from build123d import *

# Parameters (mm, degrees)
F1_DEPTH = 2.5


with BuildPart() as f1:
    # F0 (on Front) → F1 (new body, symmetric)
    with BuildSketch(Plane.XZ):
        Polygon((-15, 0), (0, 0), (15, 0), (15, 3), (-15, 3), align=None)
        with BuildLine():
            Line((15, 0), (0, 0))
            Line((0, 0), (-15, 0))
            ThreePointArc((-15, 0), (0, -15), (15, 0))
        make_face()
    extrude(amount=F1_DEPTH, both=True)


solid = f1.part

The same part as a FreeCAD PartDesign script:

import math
import FreeCAD as App
import Part
import Sketcher
from FreeCAD import Vector

doc = App.newDocument("Part")
body = doc.addObject("PartDesign::Body", "Body")

sketch1 = body.newObject("Sketcher::SketchObject", "Sketch")
sketch1.AttachmentSupport = (doc.getObject("XZ_Plane"), [""])
sketch1.MapMode = "FlatFace"
sketch1.addGeometry([
    Part.LineSegment(Vector(15, 0, 0), Vector(15, 3, 0)),
    Part.LineSegment(Vector(15, 3, 0), Vector(-15, 3, 0)),
    Part.LineSegment(Vector(-15, 3, 0), Vector(-15, 0, 0)),
    Part.ArcOfCircle(Part.Circle(Vector(0, 0, 0), Vector(0, 0, 1), 15), math.radians(180), math.radians(360)),
], False)
sketch1.addConstraint([
    Sketcher.Constraint("Coincident", 0, 2, 1, 1),
    Sketcher.Constraint("Coincident", 1, 2, 2, 1),
    Sketcher.Constraint("Tangent", 2, 2, 3, 1),
    Sketcher.Constraint("Tangent", 3, 2, 0, 1),
    Sketcher.Constraint("Vertical", 0),
    Sketcher.Constraint("Horizontal", 1),
    Sketcher.Constraint("Vertical", 2),
    Sketcher.Constraint("Coincident", 3, 3, -1, 1),
    Sketcher.Constraint("Radius", 3, 15.0),
    Sketcher.Constraint("DistanceY", 0, 1, 0, 2, 3.0),
])
pad1 = body.newObject("PartDesign::Pad", "Pad")
pad1.Profile = sketch1
pad1.Length = 5
pad1.Midplane = True

doc.recompute()
